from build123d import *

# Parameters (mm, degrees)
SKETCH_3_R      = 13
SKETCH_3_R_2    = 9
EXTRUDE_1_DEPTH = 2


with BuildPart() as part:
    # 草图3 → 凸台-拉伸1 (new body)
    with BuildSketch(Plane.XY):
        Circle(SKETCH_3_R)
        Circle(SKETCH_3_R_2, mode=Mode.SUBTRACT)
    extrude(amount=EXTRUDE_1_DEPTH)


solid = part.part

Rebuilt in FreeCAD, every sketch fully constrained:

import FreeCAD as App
import Part
import Sketcher

V = App.Vector

doc = App.newDocument("Part")
body = doc.addObject("PartDesign::Body", "Body")

sketch1 = body.newObject("Sketcher::SketchObject", "Sketch")
sketch1.AttachmentSupport = (doc.getObject("XY_Plane"), [""])
sketch1.MapMode = "FlatFace"
sketch1.addGeometry([
    Part.Circle(V(0, 0, 0), V(0, 0, 1), 13),
    Part.Circle(V(0, 0, 0), V(0, 0, 1), 9),
], False)
sketch1.addConstraint([
    Sketcher.Constraint("Coincident", 0, 3, -1, 1),
    Sketcher.Constraint("Coincident", 1, 3, -1, 1),
    Sketcher.Constraint("Diameter", 0, 26.0),
    Sketcher.Constraint("Diameter", 1, 18.0),
])
pad1 = body.newObject("PartDesign::Pad", "Pad")
pad1.Profile = sketch1
pad1.Length = 2

doc.recompute()
